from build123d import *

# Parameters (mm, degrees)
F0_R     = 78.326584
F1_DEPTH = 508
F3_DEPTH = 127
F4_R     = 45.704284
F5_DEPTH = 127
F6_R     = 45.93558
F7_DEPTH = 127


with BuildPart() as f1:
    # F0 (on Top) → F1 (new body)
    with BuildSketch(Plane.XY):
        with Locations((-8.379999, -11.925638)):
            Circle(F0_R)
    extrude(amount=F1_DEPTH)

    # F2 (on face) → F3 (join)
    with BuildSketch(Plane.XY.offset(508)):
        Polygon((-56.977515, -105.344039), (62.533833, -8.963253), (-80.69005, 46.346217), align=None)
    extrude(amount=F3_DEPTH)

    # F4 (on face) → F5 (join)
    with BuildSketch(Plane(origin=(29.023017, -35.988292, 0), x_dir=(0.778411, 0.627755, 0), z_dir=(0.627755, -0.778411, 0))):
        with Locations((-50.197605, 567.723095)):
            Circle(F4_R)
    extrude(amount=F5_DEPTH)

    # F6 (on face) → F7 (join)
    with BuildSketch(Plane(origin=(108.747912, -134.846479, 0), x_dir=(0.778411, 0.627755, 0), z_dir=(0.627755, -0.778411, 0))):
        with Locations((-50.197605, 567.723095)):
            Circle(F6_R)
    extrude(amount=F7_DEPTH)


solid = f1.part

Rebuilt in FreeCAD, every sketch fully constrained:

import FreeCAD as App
import Part
import Sketcher
Q = App.Units.Quantity

doc = App.newDocument("Part")
body = doc.addObject("PartDesign::Body", "Body")

# Sketch on XY plane
sketch1 = doc.addObject("Sketcher::SketchObject", "Sketch")
body.addObject(sketch1)
sketch1.AttachmentSupport = (doc.XY_Plane, [""])
sketch1.MapMode = "FlatFace"
sketch1.addGeometry(Part.Circle(App.Vector(-8, -12, 0), App.Vector(0, 0, 1), 78), False)
sketch1.addConstraint([
    Sketcher.Constraint("Diameter", 0, Q("156.653168 mm")),
    Sketcher.Constraint("DistanceX", 0, 3, -1, 1, Q("8.379999 mm")),
    Sketcher.Constraint("DistanceY", 0, 3, -1, 1, Q("11.925638 mm")),
])
pad1 = doc.addObject("PartDesign::Pad", "Pad")
body.addObject(pad1)
pad1.Profile = sketch1
pad1.Length = Q("20 in")

# Sketch on XY plane
sketch2 = doc.addObject("Sketcher::SketchObject", "Sketch001")
body.addObject(sketch2)
sketch2.AttachmentSupport = (doc.XY_Plane, [""])
sketch2.MapMode = "FlatFace"
sketch2.AttachmentOffset = App.Placement(App.Vector(0, 0, 20 * 25.4), App.Rotation())
sketch2.addGeometry([
    Part.LineSegment(App.Vector(-57, -105, 0), App.Vector(63, -9, 0)),
    Part.LineSegment(App.Vector(63, -9, 0), App.Vector(-81, 46, 0)),
    Part.LineSegment(App.Vector(-81, 46, 0), App.Vector(-57, -105, 0)),
], False)
sketch2.addConstraint([
    Sketcher.Constraint("Coincident", 0, 2, 1, 1),
    Sketcher.Constraint("Coincident", 1, 2, 2, 1),
    Sketcher.Constraint("Coincident", 2, 2, 0, 1),
    Sketcher.Constraint("Equal", 0, 1),
    Sketcher.Constraint("Equal", 1, 2),
    Sketcher.Constraint("DistanceX", 1, 2, -1, 1, Q("80.69005 mm")),
    Sketcher.Constraint("DistanceY", 2, 2, -1, 1, Q("105.344039 mm")),
    Sketcher.Constraint("DistanceY", 0, 2, 1, 2, Q("55.30947 mm")),
    Sketcher.Constraint("DistanceX", 2, 2, 0, 2, Q("119.511348 mm")),
])
pad2 = doc.addObject("PartDesign::Pad", "Pad001")
body.addObject(pad2)
pad2.Profile = sketch2
pad2.Length = Q("5 in")

# Sketch on an angled plane
sketch3 = doc.addObject("Sketcher::SketchObject", "Sketch002")
body.addObject(sketch3)
sketch3.Placement = App.Placement(App.Vector(29.023017, -35.988292, 0), App.Rotation(App.Vector(0.77841099, 0.627754992, 0), App.Vector(0, 0, 0.999999999), App.Vector(0.627754992, -0.77841099, 0), "ZXY"))
sketch3.addGeometry(Part.Circle(App.Vector(-50, 568, 0), App.Vector(0, 0, 1), 46), False)
sketch3.addConstraint([
    Sketcher.Constraint("Diameter", 0, Q("91.408568 mm")),
    Sketcher.Constraint("DistanceX", 0, 3, -1, 1, Q("50.197605 mm")),
    Sketcher.Constraint("DistanceY", -1, 1, 0, 3, Q("567.723094 mm")),
])
pad3 = doc.addObject("PartDesign::Pad", "Pad002")
body.addObject(pad3)
pad3.Profile = sketch3
pad3.Length = Q("5 in")

# Sketch on an angled plane
sketch4 = doc.addObject("Sketcher::SketchObject", "Sketch003")
body.addObject(sketch4)
sketch4.Placement = App.Placement(App.Vector(108.747912, -134.846479, 0), App.Rotation(App.Vector(0.77841099, 0.627754992, 0), App.Vector(0, 0, 0.999999999), App.Vector(0.627754992, -0.77841099, 0), "ZXY"))
sketch4.addGeometry(Part.Circle(App.Vector(-50, 568, 0), App.Vector(0, 0, 1), 46), False)
sketch4.addConstraint([
    Sketcher.Constraint("Diameter", 0, Q("91.87116 mm")),
    Sketcher.Constraint("DistanceX", 0, 3, -1, 1, Q("50.197605 mm")),
    Sketcher.Constraint("DistanceY", -1, 1, 0, 3, Q("567.723094 mm")),
])
pad4 = doc.addObject("PartDesign::Pad", "Pad003")
body.addObject(pad4)
pad4.Profile = sketch4
pad4.Length = Q("5 in")

doc.recompute()
